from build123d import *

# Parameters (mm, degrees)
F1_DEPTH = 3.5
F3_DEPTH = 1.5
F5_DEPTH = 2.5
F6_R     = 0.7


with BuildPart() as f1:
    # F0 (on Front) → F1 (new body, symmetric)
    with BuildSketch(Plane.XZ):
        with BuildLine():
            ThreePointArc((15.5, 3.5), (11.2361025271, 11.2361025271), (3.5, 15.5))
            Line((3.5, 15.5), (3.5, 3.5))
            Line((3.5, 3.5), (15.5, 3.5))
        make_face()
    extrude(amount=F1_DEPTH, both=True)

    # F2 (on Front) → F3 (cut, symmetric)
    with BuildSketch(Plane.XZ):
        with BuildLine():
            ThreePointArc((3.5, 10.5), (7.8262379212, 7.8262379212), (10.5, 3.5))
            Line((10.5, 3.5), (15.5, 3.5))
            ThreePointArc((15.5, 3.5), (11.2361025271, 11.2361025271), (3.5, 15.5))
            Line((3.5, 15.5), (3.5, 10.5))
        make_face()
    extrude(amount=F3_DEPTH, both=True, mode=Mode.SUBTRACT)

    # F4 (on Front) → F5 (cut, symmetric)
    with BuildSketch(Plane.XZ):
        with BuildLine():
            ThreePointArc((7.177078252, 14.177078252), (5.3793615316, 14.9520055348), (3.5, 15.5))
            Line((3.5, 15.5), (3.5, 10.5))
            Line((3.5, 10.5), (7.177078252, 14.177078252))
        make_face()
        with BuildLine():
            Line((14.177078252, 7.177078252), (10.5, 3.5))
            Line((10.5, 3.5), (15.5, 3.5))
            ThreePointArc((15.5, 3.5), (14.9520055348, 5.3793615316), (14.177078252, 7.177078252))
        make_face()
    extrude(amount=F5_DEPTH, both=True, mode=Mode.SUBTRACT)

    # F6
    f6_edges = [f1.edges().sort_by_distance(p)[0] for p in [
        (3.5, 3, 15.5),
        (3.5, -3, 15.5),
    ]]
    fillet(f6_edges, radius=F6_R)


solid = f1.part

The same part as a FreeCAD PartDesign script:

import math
import FreeCAD as App
import Part
import Sketcher

V = App.Vector
Q = App.Units.Quantity


def edges_at(feature, points):
    """Names of the edges that pass closest to the given points."""
    edges = feature.Shape.Edges
    near = lambda p: min(range(len(edges)), key=lambda i: edges[i].distToShape(Part.Vertex(*p))[0])
    return sorted({f"Edge{near(p) + 1}" for p in points})

doc = App.newDocument("Part")
body = doc.addObject("PartDesign::Body", "Body")

# Sketch on XZ plane
sketch1 = body.newObject("Sketcher::SketchObject", "Sketch")
sketch1.AttachmentSupport = (doc.getObject("XZ_Plane"), [""])
sketch1.MapMode = "FlatFace"
sketch1.addGeometry([
    Part.ArcOfCircle(Part.Circle(V(0, 0, 0), V(0, 0, 1), 16), math.radians(13), math.radians(77)),
    Part.LineSegment(V(4, 16, 0), V(4, 4, 0)),
    Part.LineSegment(V(4, 4, 0), V(16, 4, 0)),
], False)
sketch1.addConstraint([
    Sketcher.Constraint("Coincident", 0, 2, 1, 1),
    Sketcher.Constraint("Coincident", 1, 2, 2, 1),
    Sketcher.Constraint("Coincident", 2, 2, 0, 1),
    Sketcher.Constraint("Vertical", 1),
    Sketcher.Constraint("Horizontal", 2),
    Sketcher.Constraint("Coincident", 0, 3, -1, 1),
    Sketcher.Constraint("Equal", 2, 1),
    Sketcher.Constraint("DistanceX", 2, 1, 2, 2, 12.0),
    Sketcher.Constraint("DistanceX", -1, 1, 0, 2, 3.5),
])
pad1 = body.newObject("PartDesign::Pad", "Pad")
pad1.Profile = sketch1
pad1.Length = 7
pad1.Midplane = True

# Sketch on XZ plane
sketch2 = body.newObject("Sketcher::SketchObject", "Sketch001")
sketch2.AttachmentSupport = (doc.getObject("XZ_Plane"), [""])
sketch2.MapMode = "FlatFace"
sketch2.addGeometry([
    Part.ArcOfCircle(Part.Circle(V(0, 0, 0), V(0, 0, 1), 11), math.radians(18), math.radians(72)),
    Part.LineSegment(V(10, 4, 0), V(16, 4, 0)),
    Part.ArcOfCircle(Part.Circle(V(0, 0, 0), V(0, 0, 1), 16), math.radians(13), math.radians(77)),
    Part.LineSegment(V(4, 16, 0), V(4, 10, 0)),
], False)
sketch2.addConstraint([
    Sketcher.Constraint("Coincident", 0, 1, 1, 1),
    Sketcher.Constraint("Coincident", 1, 2, 2, 1),
    Sketcher.Constraint("Coincident", 2, 2, 3, 1),
    Sketcher.Constraint("Coincident", 3, 2, 0, 2),
    Sketcher.Constraint("Horizontal", 1),
    Sketcher.Constraint("Vertical", 3),
    Sketcher.Constraint("Coincident", 0, 3, -1, 1),
    Sketcher.Constraint("Coincident", 2, 3, -1, 1),
    Sketcher.Constraint("Equal", 1, 3),
    Sketcher.Constraint("DistanceX", 1, 1, 1, 2, 5.0),
    Sketcher.Constraint("DistanceX", 2, 2, 0, 1, 7.0),
    Sketcher.Constraint("DistanceX", -1, 1, 0, 1, 10.5),
])
pocket1 = body.newObject("PartDesign::Pocket", "Pocket")
pocket1.Profile = sketch2
pocket1.Length = 3
pocket1.Midplane = True

# Sketch on XZ plane
sketch3 = body.newObject("Sketcher::SketchObject", "Sketch002")
sketch3.AttachmentSupport = (doc.getObject("XZ_Plane"), [""])
sketch3.MapMode = "FlatFace"
sketch3.addGeometry([
    Part.ArcOfCircle(Part.Circle(V(0, 0, 0), V(0, 0, 1), 15.9), math.radians(63.15), math.radians(77.28)),  # 0
    Part.LineSegment(V(3.5, 15.5, 0), V(3.5, 10.5, 0)),  # 1
    Part.LineSegment(V(3.5, 10.5, 0), V(7.2, 14.2, 0)),  # 2
    Part.LineSegment(V(14.2, 7.2, 0), V(10.5, 3.5, 0)),  # 3
    Part.LineSegment(V(10.5, 3.5, 0), V(15.5, 3.5, 0)),  # 4
    Part.ArcOfCircle(Part.Circle(V(0, 0, 0), V(0, 0, 1), 15.9), math.radians(12.72), math.radians(26.85)),  # 5
], False)
sketch3.addConstraint([
    Sketcher.Constraint("Coincident", 0, 2, 1, 1),
    Sketcher.Constraint("Coincident", 1, 2, 2, 1),
    Sketcher.Constraint("Coincident", 2, 2, 0, 1),
    Sketcher.Constraint("Coincident", 3, 2, 4, 1),
    Sketcher.Constraint("Coincident", 4, 2, 5, 1),
    Sketcher.Constraint("Coincident", 5, 2, 3, 1),
    Sketcher.Constraint("Vertical", 1),
    Sketcher.Constraint("Horizontal", 4),
    Sketcher.Constraint("Coincident", 0, 3, -1, 1),
    Sketcher.Constraint("Coincident", 5, 3, -1, 1),
    Sketcher.Constraint("Equal", 0, 5),
    Sketcher.Constraint("Parallel", 2, 3),
    Sketcher.Constraint("Equal", 4, 1),
    Sketcher.Constraint("Equal", 2, 3),
    Sketcher.Constraint("DistanceX", 4, 1, 4, 2, 5.0),
    Sketcher.Constraint("Angle", 2, Q("45 deg")),
    Sketcher.Constraint("DistanceX", 1, 2, 3, 2, 7.0),
    Sketcher.Constraint("DistanceX", -1, 1, 0, 2, 3.5),
])
pocket2 = body.newObject("PartDesign::Pocket", "Pocket001")
pocket2.Profile = sketch3
pocket2.Length = 5
pocket2.Midplane = True
doc.recompute()

fillet = body.newObject("PartDesign::Fillet", "Fillet")
fillet.Base = (pocket2, edges_at(pocket2, [(3.5, 3, 15.5), (3.5, -3, 15.5)]))
fillet.Radius = 0.7

doc.recompute()
